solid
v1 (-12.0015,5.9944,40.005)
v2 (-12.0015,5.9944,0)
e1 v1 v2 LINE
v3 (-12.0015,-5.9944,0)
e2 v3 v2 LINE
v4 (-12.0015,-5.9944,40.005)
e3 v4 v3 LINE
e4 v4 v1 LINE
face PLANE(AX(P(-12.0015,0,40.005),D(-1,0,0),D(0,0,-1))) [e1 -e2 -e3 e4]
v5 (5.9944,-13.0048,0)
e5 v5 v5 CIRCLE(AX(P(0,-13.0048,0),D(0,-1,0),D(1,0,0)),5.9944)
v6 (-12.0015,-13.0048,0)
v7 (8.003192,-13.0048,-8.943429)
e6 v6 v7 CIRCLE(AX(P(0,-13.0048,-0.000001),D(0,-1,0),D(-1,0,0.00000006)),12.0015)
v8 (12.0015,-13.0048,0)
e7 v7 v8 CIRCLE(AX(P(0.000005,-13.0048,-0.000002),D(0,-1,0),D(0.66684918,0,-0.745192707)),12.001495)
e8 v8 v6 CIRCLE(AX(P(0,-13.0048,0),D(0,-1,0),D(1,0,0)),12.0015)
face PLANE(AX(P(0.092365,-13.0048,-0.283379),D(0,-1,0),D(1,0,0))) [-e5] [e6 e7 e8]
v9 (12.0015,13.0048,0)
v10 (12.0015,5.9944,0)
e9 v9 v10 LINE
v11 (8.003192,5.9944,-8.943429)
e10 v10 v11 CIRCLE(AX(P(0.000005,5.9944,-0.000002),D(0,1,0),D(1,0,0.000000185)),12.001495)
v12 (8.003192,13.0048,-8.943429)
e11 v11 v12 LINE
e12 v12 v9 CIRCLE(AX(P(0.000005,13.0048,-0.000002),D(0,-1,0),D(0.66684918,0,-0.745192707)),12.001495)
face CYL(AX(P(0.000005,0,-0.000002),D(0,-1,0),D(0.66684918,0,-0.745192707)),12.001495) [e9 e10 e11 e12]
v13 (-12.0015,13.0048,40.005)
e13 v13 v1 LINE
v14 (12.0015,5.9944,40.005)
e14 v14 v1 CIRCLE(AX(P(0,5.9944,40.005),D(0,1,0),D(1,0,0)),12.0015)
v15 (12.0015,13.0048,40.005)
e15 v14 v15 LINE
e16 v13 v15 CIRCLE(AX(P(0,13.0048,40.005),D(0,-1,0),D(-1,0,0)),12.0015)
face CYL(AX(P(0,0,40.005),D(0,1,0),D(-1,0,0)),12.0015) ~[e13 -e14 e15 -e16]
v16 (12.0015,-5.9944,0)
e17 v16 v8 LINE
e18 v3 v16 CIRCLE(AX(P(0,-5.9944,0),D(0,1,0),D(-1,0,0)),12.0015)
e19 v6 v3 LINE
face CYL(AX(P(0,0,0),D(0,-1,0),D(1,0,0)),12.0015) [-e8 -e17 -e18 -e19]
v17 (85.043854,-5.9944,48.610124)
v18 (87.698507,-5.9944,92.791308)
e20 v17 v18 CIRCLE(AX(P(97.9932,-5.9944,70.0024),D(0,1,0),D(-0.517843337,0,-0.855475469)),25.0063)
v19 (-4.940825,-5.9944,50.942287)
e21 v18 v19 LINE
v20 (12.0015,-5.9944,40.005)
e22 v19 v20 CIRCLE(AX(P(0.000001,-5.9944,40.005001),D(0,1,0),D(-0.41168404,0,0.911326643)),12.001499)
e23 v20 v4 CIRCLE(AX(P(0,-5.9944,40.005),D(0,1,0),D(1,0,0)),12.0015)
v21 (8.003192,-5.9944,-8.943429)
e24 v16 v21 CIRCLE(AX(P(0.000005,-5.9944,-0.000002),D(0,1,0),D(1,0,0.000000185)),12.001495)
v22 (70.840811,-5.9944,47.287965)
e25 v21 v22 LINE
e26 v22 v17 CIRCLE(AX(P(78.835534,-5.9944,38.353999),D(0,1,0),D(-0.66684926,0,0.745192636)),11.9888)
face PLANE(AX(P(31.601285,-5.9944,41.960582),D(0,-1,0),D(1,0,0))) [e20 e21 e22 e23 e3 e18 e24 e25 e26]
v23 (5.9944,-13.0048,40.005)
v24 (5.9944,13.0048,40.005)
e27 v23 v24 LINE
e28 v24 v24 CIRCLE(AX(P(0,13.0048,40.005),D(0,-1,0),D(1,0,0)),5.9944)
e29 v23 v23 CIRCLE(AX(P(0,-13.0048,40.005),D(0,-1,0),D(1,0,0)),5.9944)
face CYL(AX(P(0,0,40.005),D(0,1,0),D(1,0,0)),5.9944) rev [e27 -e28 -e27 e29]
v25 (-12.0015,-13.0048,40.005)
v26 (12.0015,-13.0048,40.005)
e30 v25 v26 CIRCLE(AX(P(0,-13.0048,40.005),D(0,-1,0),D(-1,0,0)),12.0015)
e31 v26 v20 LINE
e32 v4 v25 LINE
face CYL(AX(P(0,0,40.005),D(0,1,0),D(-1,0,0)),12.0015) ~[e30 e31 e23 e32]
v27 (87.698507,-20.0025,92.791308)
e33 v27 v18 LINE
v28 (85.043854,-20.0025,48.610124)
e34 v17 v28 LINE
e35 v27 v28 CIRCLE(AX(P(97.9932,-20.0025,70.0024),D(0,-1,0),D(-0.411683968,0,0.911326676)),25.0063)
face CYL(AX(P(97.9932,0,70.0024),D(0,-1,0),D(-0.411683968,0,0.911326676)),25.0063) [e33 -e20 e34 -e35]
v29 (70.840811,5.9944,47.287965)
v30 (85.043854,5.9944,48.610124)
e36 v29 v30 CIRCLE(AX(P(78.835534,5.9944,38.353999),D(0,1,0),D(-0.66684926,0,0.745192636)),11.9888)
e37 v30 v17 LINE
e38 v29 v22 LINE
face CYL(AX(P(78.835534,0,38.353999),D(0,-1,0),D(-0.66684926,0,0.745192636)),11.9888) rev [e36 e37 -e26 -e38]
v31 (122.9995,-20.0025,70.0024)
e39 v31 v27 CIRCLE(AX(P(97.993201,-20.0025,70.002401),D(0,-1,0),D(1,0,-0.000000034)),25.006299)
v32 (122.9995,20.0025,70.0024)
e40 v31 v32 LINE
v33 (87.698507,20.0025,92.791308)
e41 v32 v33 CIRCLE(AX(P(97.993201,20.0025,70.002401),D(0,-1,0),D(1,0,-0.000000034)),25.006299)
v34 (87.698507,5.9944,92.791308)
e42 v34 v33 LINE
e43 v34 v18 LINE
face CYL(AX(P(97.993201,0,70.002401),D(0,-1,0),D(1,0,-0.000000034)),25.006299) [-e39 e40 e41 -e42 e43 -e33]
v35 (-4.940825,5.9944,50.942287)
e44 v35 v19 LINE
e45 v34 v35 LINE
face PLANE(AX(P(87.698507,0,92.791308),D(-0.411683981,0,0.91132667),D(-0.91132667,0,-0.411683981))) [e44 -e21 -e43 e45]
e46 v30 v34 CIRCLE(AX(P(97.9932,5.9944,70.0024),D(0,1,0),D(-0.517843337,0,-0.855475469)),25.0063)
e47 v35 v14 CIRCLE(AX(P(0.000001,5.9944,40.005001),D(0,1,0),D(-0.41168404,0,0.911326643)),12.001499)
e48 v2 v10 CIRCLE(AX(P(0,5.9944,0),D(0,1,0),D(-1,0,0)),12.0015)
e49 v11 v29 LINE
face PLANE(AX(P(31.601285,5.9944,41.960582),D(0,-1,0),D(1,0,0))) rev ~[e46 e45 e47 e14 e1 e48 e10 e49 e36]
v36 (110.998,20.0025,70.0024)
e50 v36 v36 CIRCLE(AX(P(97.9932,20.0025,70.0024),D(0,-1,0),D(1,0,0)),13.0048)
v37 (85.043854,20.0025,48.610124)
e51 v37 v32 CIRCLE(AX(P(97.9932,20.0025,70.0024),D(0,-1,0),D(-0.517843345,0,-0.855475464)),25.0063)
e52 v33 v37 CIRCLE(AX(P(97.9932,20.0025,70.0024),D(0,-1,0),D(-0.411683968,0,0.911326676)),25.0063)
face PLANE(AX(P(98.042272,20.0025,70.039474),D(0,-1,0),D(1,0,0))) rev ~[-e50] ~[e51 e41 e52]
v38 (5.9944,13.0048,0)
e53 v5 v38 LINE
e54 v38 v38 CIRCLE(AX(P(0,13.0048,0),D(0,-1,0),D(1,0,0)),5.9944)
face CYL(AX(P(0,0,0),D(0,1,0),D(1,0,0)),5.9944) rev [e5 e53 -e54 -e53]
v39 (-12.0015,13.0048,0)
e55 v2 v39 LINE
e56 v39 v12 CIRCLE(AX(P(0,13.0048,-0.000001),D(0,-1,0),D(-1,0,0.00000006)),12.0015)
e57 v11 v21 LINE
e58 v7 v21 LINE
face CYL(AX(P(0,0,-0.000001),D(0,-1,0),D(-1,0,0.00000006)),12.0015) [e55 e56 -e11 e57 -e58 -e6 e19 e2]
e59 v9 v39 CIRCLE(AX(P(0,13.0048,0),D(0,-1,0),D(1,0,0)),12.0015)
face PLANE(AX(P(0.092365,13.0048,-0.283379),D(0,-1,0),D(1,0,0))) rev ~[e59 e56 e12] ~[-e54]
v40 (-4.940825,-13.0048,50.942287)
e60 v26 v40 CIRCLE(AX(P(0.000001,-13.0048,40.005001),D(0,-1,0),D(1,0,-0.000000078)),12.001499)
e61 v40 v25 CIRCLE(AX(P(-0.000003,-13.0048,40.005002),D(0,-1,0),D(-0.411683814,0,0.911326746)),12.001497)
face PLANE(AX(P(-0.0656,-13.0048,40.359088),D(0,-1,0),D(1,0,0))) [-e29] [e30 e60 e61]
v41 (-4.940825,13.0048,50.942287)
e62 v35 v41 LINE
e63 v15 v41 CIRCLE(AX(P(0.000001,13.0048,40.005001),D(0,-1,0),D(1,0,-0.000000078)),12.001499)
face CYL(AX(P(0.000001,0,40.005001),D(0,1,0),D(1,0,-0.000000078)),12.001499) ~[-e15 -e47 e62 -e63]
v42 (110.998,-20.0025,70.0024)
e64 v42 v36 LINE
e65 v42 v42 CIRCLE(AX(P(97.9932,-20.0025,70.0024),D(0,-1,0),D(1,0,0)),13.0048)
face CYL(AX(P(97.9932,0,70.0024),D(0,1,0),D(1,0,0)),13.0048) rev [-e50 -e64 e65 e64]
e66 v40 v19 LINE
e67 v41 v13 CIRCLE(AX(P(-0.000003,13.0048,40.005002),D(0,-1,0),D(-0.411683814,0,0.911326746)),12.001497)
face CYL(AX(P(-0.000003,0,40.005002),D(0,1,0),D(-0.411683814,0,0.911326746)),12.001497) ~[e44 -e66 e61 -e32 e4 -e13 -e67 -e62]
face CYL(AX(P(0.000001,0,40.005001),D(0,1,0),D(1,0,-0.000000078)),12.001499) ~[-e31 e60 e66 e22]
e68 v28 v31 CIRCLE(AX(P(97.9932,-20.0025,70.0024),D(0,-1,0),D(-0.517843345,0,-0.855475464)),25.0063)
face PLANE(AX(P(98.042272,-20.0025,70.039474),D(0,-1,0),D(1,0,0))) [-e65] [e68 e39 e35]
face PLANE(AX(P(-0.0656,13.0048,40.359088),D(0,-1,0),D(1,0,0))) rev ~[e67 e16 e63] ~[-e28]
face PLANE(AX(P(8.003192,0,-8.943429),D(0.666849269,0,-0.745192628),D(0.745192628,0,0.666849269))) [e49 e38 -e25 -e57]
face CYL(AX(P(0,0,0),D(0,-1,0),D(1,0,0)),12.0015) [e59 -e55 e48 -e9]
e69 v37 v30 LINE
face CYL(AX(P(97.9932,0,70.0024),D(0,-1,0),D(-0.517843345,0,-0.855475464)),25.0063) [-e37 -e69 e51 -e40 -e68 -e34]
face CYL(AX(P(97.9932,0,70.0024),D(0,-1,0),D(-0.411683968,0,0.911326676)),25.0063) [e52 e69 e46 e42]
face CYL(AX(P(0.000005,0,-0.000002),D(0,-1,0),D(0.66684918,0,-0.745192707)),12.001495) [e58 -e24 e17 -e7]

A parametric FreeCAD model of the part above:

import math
import FreeCAD as App
import Part
import Sketcher
Q = App.Units.Quantity

doc = App.newDocument("Part")
params = doc.addObject("Spreadsheet::Sheet", "Params")
for row, (alias, value) in enumerate([
    ("sketch1_radius", "0.472 in"),
    ("sketch1_height", "1.575 in"),
    ("pad1_length", "0.472 in"),
    ("sketch2_diameter", "0.472 in"),
    ("pad2_length", "1.024 in"),
    ("sketch3_diameter", "1.024 in"),
    ("pad3_length", "1.575 in"),
], start=1):
    params.set(f"A{row}", alias)
    params.set(f"B{row}", "=" + value)
    params.setAlias(f"B{row}", alias)

body = doc.addObject("PartDesign::Body", "Body")

# Sketch on XZ plane
sketch1 = body.newObject("Sketcher::SketchObject", "Sketch")
sketch1.AttachmentSupport = (doc.getObject("XZ_Plane"), [""])
sketch1.MapMode = "FlatFace"
sketch1.addGeometry([
    Part.ArcOfCircle(Part.Circle(App.Vector(0, 0, 0), App.Vector(0, 0, 1), 12), math.radians(0), math.radians(180)),  # 0
    Part.ArcOfCircle(Part.Circle(App.Vector(0, 0, 0), App.Vector(0, 0, 1), 12), math.radians(-48), math.radians(0)),  # 1
    Part.LineSegment(App.Vector(8, -9, 0), App.Vector(71, 47, 0)),  # 2
    Part.ArcOfCircle(Part.Circle(App.Vector(79, 38, 0), App.Vector(0, 0, 1), 12), math.radians(59), math.radians(132)),  # 3
    Part.ArcOfCircle(Part.Circle(App.Vector(98, 70, 0), App.Vector(0, 0, 1), 25), math.radians(114), math.radians(239)),  # 4
    Part.LineSegment(App.Vector(88, 93, 0), App.Vector(-5, 51, 0)),  # 5
    Part.ArcOfCircle(Part.Circle(App.Vector(0, 40, 0), App.Vector(0, 0, 1), 12), math.radians(0), math.radians(114)),  # 6
    Part.ArcOfCircle(Part.Circle(App.Vector(0, 40, 0), App.Vector(0, 0, 1), 12), math.radians(180), math.radians(360)),  # 7
    Part.LineSegment(App.Vector(-12, 40, 0), App.Vector(-12, 0, 0)),  # 8
], False)
sketch1.addConstraint([
    Sketcher.Constraint("Tangent", 0, 1, 1, 2),
    Sketcher.Constraint("Tangent", 1, 1, 2, 1),
    Sketcher.Constraint("Tangent", 2, 2, 3, 2),
    Sketcher.Constraint("Tangent", 3, 1, 4, 2),
    Sketcher.Constraint("Tangent", 4, 1, 5, 1),
    Sketcher.Constraint("Tangent", 5, 2, 6, 2),
    Sketcher.Constraint("Tangent", 6, 1, 7, 2),
    Sketcher.Constraint("Tangent", 7, 1, 8, 1),
    Sketcher.Constraint("Tangent", 8, 2, 0, 2),
    Sketcher.Constraint("Vertical", 8),
    Sketcher.Constraint("Coincident", 0, 3, -1, 1),
    Sketcher.Constraint("Equal", 0, 6),
    Sketcher.Constraint("Equal", 6, 7),
    Sketcher.Constraint("PointOnObject", 0, 1, -1),
    Sketcher.Constraint("Horizontal", 7, 3, 6, 1),
    Sketcher.Constraint("Radius", 3, Q("0.472 in")),
    Sketcher.Constraint("Radius", 0, Q("0.4725 in")),
    Sketcher.Constraint("Radius", 1, Q("0.4724998 in")),
    Sketcher.Constraint("Radius", 4, Q("0.9845 in")),
    Sketcher.Constraint("DistanceY", 8, 2, 8, 1, Q("1.575 in")),
    Sketcher.Constraint("DistanceY", -1, 1, 3, 3, Q("1.51 in")),
    Sketcher.Constraint("DistanceX", -1, 1, 4, 3, Q("3.858 in")),
    Sketcher.Constraint("DistanceY", -1, 1, 4, 3, Q("2.756 in")),
])
sketch1.setExpression("Constraints[15]", "Params.sketch1_radius")
sketch1.setExpression("Constraints[19]", "Params.sketch1_height")
pad1 = body.newObject("PartDesign::Pad", "Pad")
pad1.Profile = sketch1
pad1.setExpression("Length", "Params.pad1_length")
pad1.Midplane = True

# Sketch on XZ plane
sketch2 = body.newObject("Sketcher::SketchObject", "Sketch001")
sketch2.AttachmentSupport = (doc.getObject("XZ_Plane"), [""])
sketch2.MapMode = "FlatFace"
sketch2.addGeometry([
    Part.ArcOfCircle(Part.Circle(App.Vector(0, 40, 0), App.Vector(0, 0, 1), 12), math.radians(114), math.radians(180)),  # 0
    Part.ArcOfCircle(Part.Circle(App.Vector(0, 40, 0), App.Vector(0, 0, 1), 12), math.radians(180), math.radians(360)),  # 1
    Part.ArcOfCircle(Part.Circle(App.Vector(0, 40, 0), App.Vector(0, 0, 1), 12), math.radians(0), math.radians(114)),  # 2
    Part.Circle(App.Vector(0, 40, 0), App.Vector(0, 0, 1), 6),  # 3
    Part.ArcOfCircle(Part.Circle(App.Vector(0, 0, 0), App.Vector(0, 0, 1), 12), math.radians(-48), math.radians(0)),  # 4
    Part.ArcOfCircle(Part.Circle(App.Vector(0, 0, 0), App.Vector(0, 0, 1), 12), math.radians(0), math.radians(180)),  # 5
    Part.ArcOfCircle(Part.Circle(App.Vector(0, 0, 0), App.Vector(0, 0, 1), 12), math.radians(180), math.radians(312)),  # 6
    Part.Circle(App.Vector(0, 0, 0), App.Vector(0, 0, 1), 6),  # 7
], False)
sketch2.addConstraint([
    Sketcher.Constraint("Tangent", 0, 2, 1, 1),
    Sketcher.Constraint("Tangent", 1, 2, 2, 1),
    Sketcher.Constraint("Tangent", 2, 2, 0, 1),
    Sketcher.Constraint("Tangent", 4, 2, 5, 1),
    Sketcher.Constraint("Tangent", 5, 2, 6, 1),
    Sketcher.Constraint("Tangent", 6, 2, 4, 1),
    Sketcher.Constraint("Coincident", 4, 3, -1, 1),
    Sketcher.Constraint("Coincident", 7, 3, -1, 1),
    Sketcher.Constraint("Coincident", 3, 3, 0, 3),
    Sketcher.Constraint("Equal", 0, 4),
    Sketcher.Constraint("Equal", 3, 7),
    Sketcher.Constraint("Symmetric", 0, 2, 1, 2, -2),
    Sketcher.Constraint("PointOnObject", 4, 2, -1),
    Sketcher.Constraint("PointOnObject", 5, 2, -1),
    Sketcher.Constraint("Horizontal", 3, 3, 0, 2),
    Sketcher.Constraint("Diameter", 3, Q("0.472 in")),
    Sketcher.Constraint("Radius", 0, Q("0.4724999 in")),
    Sketcher.Constraint("DistanceY", -1, 1, 0, 3, Q("1.5750001 in")),
    Sketcher.Constraint("DistanceY", 6, 2, -1, 1, 8.943429),
    Sketcher.Constraint("DistanceX", 2, 2, -1, 1, 4.940825),
])
sketch2.setExpression("Constraints[15]", "Params.sketch2_diameter")
pad2 = body.newObject("PartDesign::Pad", "Pad001")
pad2.Profile = sketch2
pad2.setExpression("Length", "Params.pad2_length")
pad2.Midplane = True

# Sketch on XZ plane
sketch3 = body.newObject("Sketcher::SketchObject", "Sketch002")
sketch3.AttachmentSupport = (doc.getObject("XZ_Plane"), [""])
sketch3.MapMode = "FlatFace"
sketch3.addGeometry([
    Part.ArcOfCircle(Part.Circle(App.Vector(98, 70, 0), App.Vector(0, 0, 1), 25), math.radians(114), math.radians(239)),
    Part.ArcOfCircle(Part.Circle(App.Vector(98, 70, 0), App.Vector(0, 0, 1), 25), math.radians(-121), math.radians(0)),
    Part.ArcOfCircle(Part.Circle(App.Vector(98, 70, 0), App.Vector(0, 0, 1), 25), math.radians(0), math.radians(114)),
    Part.Circle(App.Vector(98, 70, 0), App.Vector(0, 0, 1), 13),
], False)
sketch3.addConstraint([
    Sketcher.Constraint("Tangent", 0, 2, 1, 1),
    Sketcher.Constraint("Tangent", 1, 2, 2, 1),
    Sketcher.Constraint("Tangent", 2, 2, 0, 1),
    Sketcher.Constraint("Coincident", 3, 3, 0, 3),
    Sketcher.Constraint("Horizontal", 3, 3, 1, 2),
    Sketcher.Constraint("Diameter", 3, Q("1.024 in")),
    Sketcher.Constraint("Radius", 0, Q("0.9845 in")),
    Sketcher.Constraint("DistanceX", -1, 1, 0, 3, Q("3.858 in")),
    Sketcher.Constraint("DistanceY", -1, 1, 0, 3, Q("2.756 in")),
    Sketcher.Constraint("DistanceY", -1, 1, 2, 2, 92.791308),
    Sketcher.Constraint("DistanceX", -1, 1, 0, 2, 85.043854),
])
sketch3.setExpression("Constraints[5]", "Params.sketch3_diameter")
pad3 = body.newObject("PartDesign::Pad", "Pad002")
pad3.Profile = sketch3
pad3.setExpression("Length", "Params.pad3_length")
pad3.Midplane = True

doc.recompute()
